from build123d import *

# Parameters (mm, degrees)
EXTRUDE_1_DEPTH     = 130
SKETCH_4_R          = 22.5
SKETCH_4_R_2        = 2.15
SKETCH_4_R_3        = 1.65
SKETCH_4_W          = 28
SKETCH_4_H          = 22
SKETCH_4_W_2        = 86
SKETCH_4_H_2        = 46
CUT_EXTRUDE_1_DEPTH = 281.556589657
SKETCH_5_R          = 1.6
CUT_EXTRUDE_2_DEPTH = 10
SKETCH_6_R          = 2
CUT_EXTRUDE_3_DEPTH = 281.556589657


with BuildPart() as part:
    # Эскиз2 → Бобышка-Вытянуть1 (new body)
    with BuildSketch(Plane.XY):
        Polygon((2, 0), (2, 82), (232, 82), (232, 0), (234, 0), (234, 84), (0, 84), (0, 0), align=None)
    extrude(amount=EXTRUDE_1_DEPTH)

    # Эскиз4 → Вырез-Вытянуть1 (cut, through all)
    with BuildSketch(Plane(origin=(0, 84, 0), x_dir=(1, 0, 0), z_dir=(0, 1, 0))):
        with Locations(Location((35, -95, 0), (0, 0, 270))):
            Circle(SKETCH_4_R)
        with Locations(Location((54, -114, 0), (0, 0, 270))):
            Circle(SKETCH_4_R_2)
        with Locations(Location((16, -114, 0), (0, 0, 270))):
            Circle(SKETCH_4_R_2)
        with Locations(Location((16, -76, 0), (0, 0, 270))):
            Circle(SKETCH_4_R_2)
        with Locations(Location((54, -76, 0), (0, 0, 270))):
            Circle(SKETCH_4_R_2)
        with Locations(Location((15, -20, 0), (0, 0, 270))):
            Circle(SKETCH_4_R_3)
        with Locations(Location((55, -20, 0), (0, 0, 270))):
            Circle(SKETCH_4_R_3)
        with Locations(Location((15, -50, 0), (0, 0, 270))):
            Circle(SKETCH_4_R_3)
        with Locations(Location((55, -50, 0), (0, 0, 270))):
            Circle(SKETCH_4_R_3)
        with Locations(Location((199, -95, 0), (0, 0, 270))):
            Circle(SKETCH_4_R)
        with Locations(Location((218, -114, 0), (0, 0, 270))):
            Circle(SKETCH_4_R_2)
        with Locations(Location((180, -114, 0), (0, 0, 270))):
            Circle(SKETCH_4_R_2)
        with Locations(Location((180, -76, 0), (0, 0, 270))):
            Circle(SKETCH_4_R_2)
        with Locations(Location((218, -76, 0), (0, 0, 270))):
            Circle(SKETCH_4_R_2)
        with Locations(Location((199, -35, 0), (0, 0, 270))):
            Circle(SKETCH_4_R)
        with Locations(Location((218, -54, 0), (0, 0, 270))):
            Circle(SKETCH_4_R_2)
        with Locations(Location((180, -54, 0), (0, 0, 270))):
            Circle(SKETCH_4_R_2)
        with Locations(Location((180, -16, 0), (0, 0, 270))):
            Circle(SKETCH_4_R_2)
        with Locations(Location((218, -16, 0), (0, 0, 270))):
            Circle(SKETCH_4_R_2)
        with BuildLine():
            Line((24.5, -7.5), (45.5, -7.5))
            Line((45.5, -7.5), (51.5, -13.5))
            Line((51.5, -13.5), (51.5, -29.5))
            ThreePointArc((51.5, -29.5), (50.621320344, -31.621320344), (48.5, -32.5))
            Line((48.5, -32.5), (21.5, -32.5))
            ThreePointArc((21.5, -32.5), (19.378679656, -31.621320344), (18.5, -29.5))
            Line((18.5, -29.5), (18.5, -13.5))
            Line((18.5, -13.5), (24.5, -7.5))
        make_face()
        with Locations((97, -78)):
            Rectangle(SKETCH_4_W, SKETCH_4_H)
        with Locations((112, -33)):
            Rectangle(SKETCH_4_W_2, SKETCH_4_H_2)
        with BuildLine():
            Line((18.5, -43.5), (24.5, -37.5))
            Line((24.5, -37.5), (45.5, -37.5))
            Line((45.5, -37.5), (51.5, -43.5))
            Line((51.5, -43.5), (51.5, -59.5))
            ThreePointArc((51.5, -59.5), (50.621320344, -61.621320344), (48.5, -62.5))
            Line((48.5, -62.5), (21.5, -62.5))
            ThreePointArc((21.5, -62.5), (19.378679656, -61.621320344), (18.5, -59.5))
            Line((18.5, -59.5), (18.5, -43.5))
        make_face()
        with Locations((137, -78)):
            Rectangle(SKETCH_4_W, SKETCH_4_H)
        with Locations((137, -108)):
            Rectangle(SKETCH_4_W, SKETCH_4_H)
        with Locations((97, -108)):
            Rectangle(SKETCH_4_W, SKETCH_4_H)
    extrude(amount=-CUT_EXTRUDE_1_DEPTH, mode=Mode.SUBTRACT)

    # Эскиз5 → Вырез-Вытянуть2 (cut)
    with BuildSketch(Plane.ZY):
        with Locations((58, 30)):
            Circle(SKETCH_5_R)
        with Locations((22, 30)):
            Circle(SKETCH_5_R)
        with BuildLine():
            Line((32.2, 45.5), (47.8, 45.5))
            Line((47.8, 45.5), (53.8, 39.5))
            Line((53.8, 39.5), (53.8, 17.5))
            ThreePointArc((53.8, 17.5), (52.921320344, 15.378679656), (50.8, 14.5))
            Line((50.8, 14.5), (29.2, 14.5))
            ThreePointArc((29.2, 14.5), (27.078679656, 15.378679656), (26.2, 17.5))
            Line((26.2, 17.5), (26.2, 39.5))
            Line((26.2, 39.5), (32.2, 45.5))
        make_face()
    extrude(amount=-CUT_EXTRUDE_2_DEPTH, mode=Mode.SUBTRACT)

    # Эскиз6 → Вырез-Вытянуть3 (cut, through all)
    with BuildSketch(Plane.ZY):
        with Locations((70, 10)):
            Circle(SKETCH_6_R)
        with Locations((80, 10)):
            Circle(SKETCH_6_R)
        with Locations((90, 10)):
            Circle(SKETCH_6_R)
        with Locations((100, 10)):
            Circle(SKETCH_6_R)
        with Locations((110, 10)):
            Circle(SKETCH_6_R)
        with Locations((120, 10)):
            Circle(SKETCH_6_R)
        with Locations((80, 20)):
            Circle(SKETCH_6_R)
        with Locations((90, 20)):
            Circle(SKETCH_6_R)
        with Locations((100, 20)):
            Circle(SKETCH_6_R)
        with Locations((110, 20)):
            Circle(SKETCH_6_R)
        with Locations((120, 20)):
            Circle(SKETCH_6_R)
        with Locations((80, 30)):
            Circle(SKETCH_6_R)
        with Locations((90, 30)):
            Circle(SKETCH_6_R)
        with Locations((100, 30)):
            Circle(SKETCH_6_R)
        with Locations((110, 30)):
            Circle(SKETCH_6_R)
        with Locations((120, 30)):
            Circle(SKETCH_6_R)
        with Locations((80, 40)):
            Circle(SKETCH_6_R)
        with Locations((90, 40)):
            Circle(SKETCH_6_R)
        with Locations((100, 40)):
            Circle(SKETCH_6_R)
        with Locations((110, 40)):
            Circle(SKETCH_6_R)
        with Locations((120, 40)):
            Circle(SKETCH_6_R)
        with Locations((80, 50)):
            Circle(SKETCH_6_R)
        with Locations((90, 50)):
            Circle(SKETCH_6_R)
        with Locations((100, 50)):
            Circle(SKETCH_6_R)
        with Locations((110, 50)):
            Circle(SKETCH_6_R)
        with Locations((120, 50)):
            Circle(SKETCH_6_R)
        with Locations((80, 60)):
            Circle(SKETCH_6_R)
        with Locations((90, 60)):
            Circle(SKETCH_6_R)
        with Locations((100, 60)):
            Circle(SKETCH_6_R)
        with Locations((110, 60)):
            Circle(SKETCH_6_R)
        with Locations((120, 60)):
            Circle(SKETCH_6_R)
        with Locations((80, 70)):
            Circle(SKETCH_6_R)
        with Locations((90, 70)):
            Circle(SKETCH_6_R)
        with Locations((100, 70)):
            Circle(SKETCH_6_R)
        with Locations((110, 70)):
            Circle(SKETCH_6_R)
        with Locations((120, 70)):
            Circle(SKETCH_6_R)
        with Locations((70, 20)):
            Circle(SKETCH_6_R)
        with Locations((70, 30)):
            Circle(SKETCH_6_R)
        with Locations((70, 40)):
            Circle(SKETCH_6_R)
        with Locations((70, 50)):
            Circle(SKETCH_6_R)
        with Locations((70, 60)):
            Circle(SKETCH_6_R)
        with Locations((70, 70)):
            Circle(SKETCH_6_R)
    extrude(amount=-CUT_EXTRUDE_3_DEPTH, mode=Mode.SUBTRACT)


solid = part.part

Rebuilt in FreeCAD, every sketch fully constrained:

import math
import FreeCAD as App
import Part
import Sketcher
from FreeCAD import Vector

doc = App.newDocument("Part")
params = doc.addObject("Spreadsheet::Sheet", "Params")
for row, (alias, value) in enumerate([
    ("sketch1_width", "230 mm"),
    ("sketch1_width2", "2 mm"),
    ("sketch1_height", "82 mm"),
    ("sketch1_height2", "84 mm"),
    ("pad1_length", "130 mm"),
    ("sketch2_diameter", "45 mm"),
    ("sketch2_radius", "3 mm"),
    ("sketch2_diameter2", "4.3 mm"),
    ("sketch2_diameter3", "3.3 mm"),
    ("sketch2_width", "21 mm"),
    ("sketch3_radius", "3 mm"),
    ("sketch3_diameter", "3.2 mm"),
    ("sketch3_width", "22 mm"),
    ("sketch3_height", "15.6 mm"),
    ("sketch3_height2", "21.6 mm"),
    ("pocket2_length", "10 mm"),
    ("sketch4_diameter", "4 mm"),
], start=1):
    params.set(f"A{row}", alias)
    params.set(f"B{row}", "=" + value)
    params.setAlias(f"B{row}", alias)

body = doc.addObject("PartDesign::Body", "Body")

# Sketch on XY plane
sketch1 = body.newObject("Sketcher::SketchObject", "Sketch")
sketch1.AttachmentSupport = (doc.getObject("XY_Plane"), [""])
sketch1.MapMode = "FlatFace"
sketch1.addGeometry([
    Part.LineSegment(Vector(2, 0, 0), Vector(2, 82, 0)),  # 0
    Part.LineSegment(Vector(2, 82, 0), Vector(232, 82, 0)),  # 1
    Part.LineSegment(Vector(232, 82, 0), Vector(232, 0, 0)),  # 2
    Part.LineSegment(Vector(232, 0, 0), Vector(234, 0, 0)),  # 3
    Part.LineSegment(Vector(234, 0, 0), Vector(234, 84, 0)),  # 4
    Part.LineSegment(Vector(234, 84, 0), Vector(0, 84, 0)),  # 5
    Part.LineSegment(Vector(0, 84, 0), Vector(0, 0, 0)),  # 6
    Part.LineSegment(Vector(0, 0, 0), Vector(2, 0, 0)),  # 7
], False)
sketch1.addConstraint([
    Sketcher.Constraint("Coincident", 0, 2, 1, 1),
    Sketcher.Constraint("Coincident", 1, 2, 2, 1),
    Sketcher.Constraint("Coincident", 2, 2, 3, 1),
    Sketcher.Constraint("Coincident", 3, 2, 4, 1),
    Sketcher.Constraint("Coincident", 4, 2, 5, 1),
    Sketcher.Constraint("Coincident", 5, 2, 6, 1),
    Sketcher.Constraint("Coincident", 6, 2, 7, 1),
    Sketcher.Constraint("Coincident", 7, 2, 0, 1),
    Sketcher.Constraint("Vertical", 0),
    Sketcher.Constraint("Horizontal", 1),
    Sketcher.Constraint("Vertical", 2),
    Sketcher.Constraint("Horizontal", 3),
    Sketcher.Constraint("Vertical", 4),
    Sketcher.Constraint("Horizontal", 5),
    Sketcher.Constraint("Vertical", 6),
    Sketcher.Constraint("Horizontal", 7),
    Sketcher.Constraint("Coincident", 6, 2, -1, 1),
    Sketcher.Constraint("PointOnObject", 2, 2, -1),
    Sketcher.Constraint("Equal", 3, 7),
    Sketcher.Constraint("DistanceX", 1, 1, 1, 2, 230.0),
    Sketcher.Constraint("DistanceX", 3, 1, 3, 2, 2.0),
    Sketcher.Constraint("DistanceY", 0, 1, 0, 2, 82.0),
    Sketcher.Constraint("DistanceY", 4, 1, 4, 2, 84.0),
])
sketch1.setExpression("Constraints[19]", "Params.sketch1_width")
sketch1.setExpression("Constraints[20]", "Params.sketch1_width2")
sketch1.setExpression("Constraints[21]", "Params.sketch1_height")
sketch1.setExpression("Constraints[22]", "Params.sketch1_height2")
pad1 = body.newObject("PartDesign::Pad", "Pad")
pad1.Profile = sketch1
pad1.setExpression("Length", "Params.pad1_length")

# Sketch on XZ plane
sketch2 = body.newObject("Sketcher::SketchObject", "Sketch001")
sketch2.AttachmentSupport = (doc.getObject("XZ_Plane"), [""])
sketch2.MapMode = "FlatFace"
sketch2.AttachmentOffset = App.Placement(Vector(0, 0, -84), App.Rotation())
sketch2.addGeometry([
    Part.Circle(Vector(35, 95, 0), Vector(0, 0, 1), 22.5),  # 0
    Part.Circle(Vector(54, 114, 0), Vector(0, 0, 1), 2.15),  # 1
    Part.Circle(Vector(16, 114, 0), Vector(0, 0, 1), 2.15),  # 2
    Part.Circle(Vector(16, 76, 0), Vector(0, 0, 1), 2.15),  # 3
    Part.Circle(Vector(54, 76, 0), Vector(0, 0, 1), 2.15),  # 4
    Part.Circle(Vector(15, 20, 0), Vector(0, 0, 1), 1.65),  # 5
    Part.Circle(Vector(55, 20, 0), Vector(0, 0, 1), 1.65),  # 6
    Part.Circle(Vector(15, 50, 0), Vector(0, 0, 1), 1.65),  # 7
    Part.Circle(Vector(55, 50, 0), Vector(0, 0, 1), 1.65),  # 8
    Part.Circle(Vector(199, 95, 0), Vector(0, 0, 1), 22.5),  # 9
    Part.Circle(Vector(218, 114, 0), Vector(0, 0, 1), 2.15),  # 10
    Part.Circle(Vector(180, 114, 0), Vector(0, 0, 1), 2.15),  # 11
    Part.Circle(Vector(180, 76, 0), Vector(0, 0, 1), 2.15),  # 12
    Part.Circle(Vector(218, 76, 0), Vector(0, 0, 1), 2.15),  # 13
    Part.Circle(Vector(199, 35, 0), Vector(0, 0, 1), 22.5),  # 14
    Part.Circle(Vector(218, 54, 0), Vector(0, 0, 1), 2.15),  # 15
    Part.Circle(Vector(180, 54, 0), Vector(0, 0, 1), 2.15),  # 16
    Part.Circle(Vector(180, 16, 0), Vector(0, 0, 1), 2.15),  # 17
    Part.Circle(Vector(218, 16, 0), Vector(0, 0, 1), 2.15),  # 18
    Part.LineSegment(Vector(45.5, 7.5, 0), Vector(24.5, 7.5, 0)),  # 19
    Part.LineSegment(Vector(24.5, 7.5, 0), Vector(18.5, 13.5, 0)),  # 20
    Part.LineSegment(Vector(18.5, 13.5, 0), Vector(18.5, 29.5, 0)),  # 21
    Part.ArcOfCircle(Part.Circle(Vector(21.5, 29.5, 0), Vector(0, 0, 1), 3), math.radians(90), math.radians(180)),  # 22
    Part.LineSegment(Vector(21.5, 32.5, 0), Vector(48.5, 32.5, 0)),  # 23
    Part.ArcOfCircle(Part.Circle(Vector(48.5, 29.5, 0), Vector(0, 0, 1), 3), math.radians(0), math.radians(90)),  # 24
    Part.LineSegment(Vector(51.5, 29.5, 0), Vector(51.5, 13.5, 0)),  # 25
    Part.LineSegment(Vector(51.5, 13.5, 0), Vector(45.5, 7.5, 0)),  # 26
    Part.LineSegment(Vector(83, 67, 0), Vector(83, 89, 0)),  # 27
    Part.LineSegment(Vector(83, 89, 0), Vector(111, 89, 0)),  # 28
    Part.LineSegment(Vector(111, 89, 0), Vector(111, 67, 0)),  # 29
    Part.LineSegment(Vector(111, 67, 0), Vector(83, 67, 0)),  # 30
    Part.LineSegment(Vector(69, 10, 0), Vector(69, 56, 0)),  # 31
    Part.LineSegment(Vector(69, 56, 0), Vector(155, 56, 0)),  # 32
    Part.LineSegment(Vector(155, 56, 0), Vector(155, 10, 0)),  # 33
    Part.LineSegment(Vector(155, 10, 0), Vector(69, 10, 0)),  # 34
    Part.LineSegment(Vector(24.5, 37.5, 0), Vector(18.5, 43.5, 0)),  # 35
    Part.LineSegment(Vector(18.5, 43.5, 0), Vector(18.5, 59.5, 0)),  # 36
    Part.ArcOfCircle(Part.Circle(Vector(21.5, 59.5, 0), Vector(0, 0, 1), 3), math.radians(90), math.radians(180)),  # 37
    Part.LineSegment(Vector(21.5, 62.5, 0), Vector(48.5, 62.5, 0)),  # 38
    Part.ArcOfCircle(Part.Circle(Vector(48.5, 59.5, 0), Vector(0, 0, 1), 3), math.radians(0), math.radians(90)),  # 39
    Part.LineSegment(Vector(51.5, 59.5, 0), Vector(51.5, 43.5, 0)),  # 40
    Part.LineSegment(Vector(51.5, 43.5, 0), Vector(45.5, 37.5, 0)),  # 41
    Part.LineSegment(Vector(45.5, 37.5, 0), Vector(24.5, 37.5, 0)),  # 42
    Part.LineSegment(Vector(123, 67, 0), Vector(123, 89, 0)),  # 43
    Part.LineSegment(Vector(123, 89, 0), Vector(151, 89, 0)),  # 44
    Part.LineSegment(Vector(151, 89, 0), Vector(151, 67, 0)),  # 45
    Part.LineSegment(Vector(151, 67, 0), Vector(123, 67, 0)),  # 46
    Part.LineSegment(Vector(123, 97, 0), Vector(123, 119, 0)),  # 47
    Part.LineSegment(Vector(123, 119, 0), Vector(151, 119, 0)),  # 48
    Part.LineSegment(Vector(151, 119, 0), Vector(151, 97, 0)),  # 49
    Part.LineSegment(Vector(151, 97, 0), Vector(123, 97, 0)),  # 50
    Part.LineSegment(Vector(83, 97, 0), Vector(83, 119, 0)),  # 51
    Part.LineSegment(Vector(83, 119, 0), Vector(111, 119, 0)),  # 52
    Part.LineSegment(Vector(111, 119, 0), Vector(111, 97, 0)),  # 53
    Part.LineSegment(Vector(111, 97, 0), Vector(83, 97, 0)),  # 54
], False)
sketch2.addConstraint([
    Sketcher.Constraint("Coincident", 19, 2, 20, 1),
    Sketcher.Constraint("Coincident", 20, 2, 21, 1),
    Sketcher.Constraint("Tangent", 21, 2, 22, 2),
    Sketcher.Constraint("Tangent", 22, 1, 23, 1),
    Sketcher.Constraint("Tangent", 23, 2, 24, 2),
    Sketcher.Constraint("Tangent", 24, 1, 25, 1),
    Sketcher.Constraint("Coincident", 25, 2, 26, 1),
    Sketcher.Constraint("Coincident", 26, 2, 19, 1),
    Sketcher.Constraint("Coincident", 27, 2, 28, 1),
    Sketcher.Constraint("Coincident", 28, 2, 29, 1),
    Sketcher.Constraint("Coincident", 29, 2, 30, 1),
    Sketcher.Constraint("Coincident", 30, 2, 27, 1),
    Sketcher.Constraint("Coincident", 31, 2, 32, 1),
    Sketcher.Constraint("Coincident", 32, 2, 33, 1),
    Sketcher.Constraint("Coincident", 33, 2, 34, 1),
    Sketcher.Constraint("Coincident", 34, 2, 31, 1),
    Sketcher.Constraint("Coincident", 35, 2, 36, 1),
    Sketcher.Constraint("Tangent", 36, 2, 37, 2),
    Sketcher.Constraint("Tangent", 37, 1, 38, 1),
    Sketcher.Constraint("Tangent", 38, 2, 39, 2),
    Sketcher.Constraint("Tangent", 39, 1, 40, 1),
    Sketcher.Constraint("Coincident", 40, 2, 41, 1),
    Sketcher.Constraint("Coincident", 41, 2, 42, 1),
    Sketcher.Constraint("Coincident", 42, 2, 35, 1),
    Sketcher.Constraint("Coincident", 43, 2, 44, 1),
    Sketcher.Constraint("Coincident", 44, 2, 45, 1),
    Sketcher.Constraint("Coincident", 45, 2, 46, 1),
    Sketcher.Constraint("Coincident", 46, 2, 43, 1),
    Sketcher.Constraint("Coincident", 47, 2, 48, 1),
    Sketcher.Constraint("Coincident", 48, 2, 49, 1),
    Sketcher.Constraint("Coincident", 49, 2, 50, 1),
    Sketcher.Constraint("Coincident", 50, 2, 47, 1),
    Sketcher.Constraint("Coincident", 51, 2, 52, 1),
    Sketcher.Constraint("Coincident", 52, 2, 53, 1),
    Sketcher.Constraint("Coincident", 53, 2, 54, 1),
    Sketcher.Constraint("Coincident", 54, 2, 51, 1),
    Sketcher.Constraint("Horizontal", 19),
    Sketcher.Constraint("Vertical", 21),
    Sketcher.Constraint("Horizontal", 23),
    Sketcher.Constraint("Vertical", 25),
    Sketcher.Constraint("Vertical", 27),
    Sketcher.Constraint("Horizontal", 28),
    Sketcher.Constraint("Vertical", 29),
    Sketcher.Constraint("Horizontal", 30),
    Sketcher.Constraint("Vertical", 31),
    Sketcher.Constraint("Horizontal", 32),
    Sketcher.Constraint("Vertical", 33),
    Sketcher.Constraint("Horizontal", 34),
    Sketcher.Constraint("Vertical", 36),
    Sketcher.Constraint("Horizontal", 38),
    Sketcher.Constraint("Vertical", 40),
    Sketcher.Constraint("Horizontal", 42),
    Sketcher.Constraint("Vertical", 43),
    Sketcher.Constraint("Horizontal", 44),
    Sketcher.Constraint("Vertical", 45),
    Sketcher.Constraint("Horizontal", 46),
    Sketcher.Constraint("Vertical", 47),
    Sketcher.Constraint("Horizontal", 48),
    Sketcher.Constraint("Vertical", 49),
    Sketcher.Constraint("Horizontal", 50),
    Sketcher.Constraint("Vertical", 51),
    Sketcher.Constraint("Horizontal", 52),
    Sketcher.Constraint("Vertical", 53),
    Sketcher.Constraint("Horizontal", 54),
    Sketcher.Constraint("Equal", 1, 2),
    Sketcher.Constraint("Equal", 2, 3),
    Sketcher.Constraint("Equal", 3, 4),
    Sketcher.Constraint("Equal", 5, 6),
    Sketcher.Constraint("Equal", 6, 7),
    Sketcher.Constraint("Equal", 7, 8),
    Sketcher.Constraint("Equal", 0, 9),
    Sketcher.Constraint("Equal", 4, 10),
    Sketcher.Constraint("Equal", 10, 11),
    Sketcher.Constraint("Equal", 11, 12),
    Sketcher.Constraint("Equal", 12, 13),
    Sketcher.Constraint("Equal", 9, 14),
    Sketcher.Constraint("Equal", 13, 15),
    Sketcher.Constraint("Equal", 15, 16),
    Sketcher.Constraint("Equal", 16, 17),
    Sketcher.Constraint("Equal", 17, 18),
    Sketcher.Constraint("Equal", 22, 24),
    Sketcher.Constraint("Equal", 24, 37),
    Sketcher.Constraint("Equal", 37, 39),
    Sketcher.Constraint("Perpendicular", 20, 26),
    Sketcher.Constraint("Perpendicular", 26, 35),
    Sketcher.Constraint("Perpendicular", 35, 41),
    Sketcher.Constraint("Horizontal", 1, 3, 2, 3),
    Sketcher.Constraint("Horizontal", 3, 3, 4, 3),
    Sketcher.Constraint("Horizontal", 5, 3, 6, 3),
    Sketcher.Constraint("Horizontal", 7, 3, 8, 3),
    Sketcher.Constraint("Horizontal", 0, 3, 9, 3),
    Sketcher.Constraint("Horizontal", 2, 3, 10, 3),
    Sketcher.Constraint("Horizontal", 10, 3, 11, 3),
    Sketcher.Constraint("Horizontal", 4, 3, 12, 3),
    Sketcher.Constraint("Horizontal", 12, 3, 13, 3),
    Sketcher.Constraint("Horizontal", 15, 3, 16, 3),
    Sketcher.Constraint("Horizontal", 17, 3, 18, 3),
    Sketcher.Constraint("Horizontal", 20, 2, 25, 2),
    Sketcher.Constraint("Horizontal", 35, 2, 40, 2),
    Sketcher.Constraint("Horizontal", 28, 2, 43, 2),
    Sketcher.Constraint("Horizontal", 30, 2, 45, 2),
    Sketcher.Constraint("Horizontal", 48, 2, 51, 2),
    Sketcher.Constraint("Horizontal", 50, 2, 53, 2),
    Sketcher.Constraint("Vertical", 2, 3, 3, 3),
    Sketcher.Constraint("Vertical", 1, 3, 4, 3),
    Sketcher.Constraint("Vertical", 5, 3, 7, 3),
    Sketcher.Constraint("Vertical", 6, 3, 8, 3),
    Sketcher.Constraint("Vertical", 11, 3, 12, 3),
    Sketcher.Constraint("Vertical", 10, 3, 13, 3),
    Sketcher.Constraint("Vertical", 9, 3, 14, 3),
    Sketcher.Constraint("Vertical", 13, 3, 15, 3),
    Sketcher.Constraint("Vertical", 12, 3, 16, 3),
    Sketcher.Constraint("Vertical", 16, 3, 17, 3),
    Sketcher.Constraint("Vertical", 15, 3, 18, 3),
    Sketcher.Constraint("Vertical", 22, 3, 37, 3),
    Sketcher.Constraint("Vertical", 24, 3, 39, 3),
    Sketcher.Constraint("Vertical", 26, 2, 41, 2),
    Sketcher.Constraint("Vertical", 46, 2, 47, 2),
    Sketcher.Constraint("Vertical", 45, 2, 48, 2),
    Sketcher.Constraint("Vertical", 30, 2, 51, 2),
    Sketcher.Constraint("Vertical", 29, 2, 52, 2),
    Sketcher.Constraint("Equal", 30, 44),
    Sketcher.Constraint("Equal", 25, 36),
    Sketcher.Constraint("Equal", 45, 47),
    Sketcher.Constraint("Equal", 20, 26),
    Sketcher.Constraint("Diameter", 0, 45.0),
    Sketcher.Constraint("Radius", 22, 3.0),
    Sketcher.Constraint("Diameter", 1, 4.3),
    Sketcher.Constraint("Diameter", 5, 3.3),
    Sketcher.Constraint("DistanceX", 19, 2, 19, 1, 21.0),
    Sketcher.Constraint("DistanceX", 23, 1, 23, 2, 27.0),
    Sketcher.Constraint("DistanceX", 28, 1, 28, 2, 28.0),
    Sketcher.Constraint("DistanceX", 32, 1, 32, 2, 86.0),
    Sketcher.Constraint("DistanceY", 21, 1, 21, 2, 16.0),
    Sketcher.Constraint("DistanceY", 27, 1, 27, 2, 22.0),
    Sketcher.Constraint("DistanceY", 31, 1, 31, 2, 46.0),
    Sketcher.Constraint("DistanceX", -1, 1, 0, 3, 35.0),
    Sketcher.Constraint("DistanceY", -1, 1, 0, 3, 95.0),
    Sketcher.Constraint("DistanceX", -1, 1, 1, 3, 54.0),
    Sketcher.Constraint("DistanceY", -1, 1, 1, 3, 114.0),
    Sketcher.Constraint("DistanceX", -1, 1, 2, 3, 16.0),
    Sketcher.Constraint("DistanceY", -1, 1, 3, 3, 76.0),
    Sketcher.Constraint("DistanceX", -1, 1, 5, 3, 15.0),
    Sketcher.Constraint("DistanceY", -1, 1, 5, 3, 20.0),
    Sketcher.Constraint("DistanceX", -1, 1, 6, 3, 55.0),
    Sketcher.Constraint("DistanceY", -1, 1, 7, 3, 50.0),
    Sketcher.Constraint("DistanceX", -1, 1, 9, 3, 199.0),
    Sketcher.Constraint("DistanceX", -1, 1, 10, 3, 218.0),
    Sketcher.Constraint("DistanceX", -1, 1, 11, 3, 180.0),
    Sketcher.Constraint("DistanceY", -1, 1, 14, 3, 35.0),
    Sketcher.Constraint("DistanceY", -1, 1, 15, 3, 54.0),
    Sketcher.Constraint("DistanceY", -1, 1, 17, 3, 16.0),
    Sketcher.Constraint("DistanceX", -1, 1, 27, 2, 83.0),
    Sketcher.Constraint("DistanceY", -1, 1, 27, 2, 89.0),
    Sketcher.Constraint("DistanceX", -1, 1, 31, 2, 69.0),
    Sketcher.Constraint("DistanceY", -1, 1, 31, 2, 56.0),
    Sketcher.Constraint("DistanceX", -1, 1, 43, 2, 123.0),
    Sketcher.Constraint("DistanceY", -1, 1, 47, 2, 119.0),
    Sketcher.Constraint("DistanceY", 22, 3, 37, 3, 30.0),
    Sketcher.Constraint("DistanceX", -1, 1, 22, 3, 21.5),
    Sketcher.Constraint("DistanceY", -1, 1, 22, 3, 29.5),
])
sketch2.setExpression("Constraints[125]", "Params.sketch2_diameter")
sketch2.setExpression("Constraints[126]", "Params.sketch2_radius")
sketch2.setExpression("Constraints[127]", "Params.sketch2_diameter2")
sketch2.setExpression("Constraints[128]", "Params.sketch2_diameter3")
sketch2.setExpression("Constraints[129]", "Params.sketch2_width")
pocket1 = body.newObject("PartDesign::Pocket", "Pocket")
pocket1.Profile = sketch2
pocket1.Type = "ThroughAll"
pocket1.Reversed = True

# Sketch on YZ plane
sketch3 = body.newObject("Sketcher::SketchObject", "Sketch002")
sketch3.AttachmentSupport = (doc.getObject("YZ_Plane"), [""])
sketch3.MapMode = "FlatFace"
sketch3.addGeometry([
    Part.Circle(Vector(30, 58, 0), Vector(0, 0, 1), 1.6),  # 0
    Part.Circle(Vector(30, 22, 0), Vector(0, 0, 1), 1.6),  # 1
    Part.LineSegment(Vector(45.5, 47.8, 0), Vector(45.5, 32.2, 0)),  # 2
    Part.LineSegment(Vector(45.5, 32.2, 0), Vector(39.5, 26.2, 0)),  # 3
    Part.LineSegment(Vector(39.5, 26.2, 0), Vector(17.5, 26.2, 0)),  # 4
    Part.ArcOfCircle(Part.Circle(Vector(17.5, 29.2, 0), Vector(0, 0, 1), 3), math.radians(180), math.radians(270)),  # 5
    Part.LineSegment(Vector(14.5, 29.2, 0), Vector(14.5, 50.8, 0)),  # 6
    Part.ArcOfCircle(Part.Circle(Vector(17.5, 50.8, 0), Vector(0, 0, 1), 3), math.radians(90), math.radians(180)),  # 7
    Part.LineSegment(Vector(17.5, 53.8, 0), Vector(39.5, 53.8, 0)),  # 8
    Part.LineSegment(Vector(39.5, 53.8, 0), Vector(45.5, 47.8, 0)),  # 9
], False)
sketch3.addConstraint([
    Sketcher.Constraint("Coincident", 2, 2, 3, 1),
    Sketcher.Constraint("Coincident", 3, 2, 4, 1),
    Sketcher.Constraint("Tangent", 4, 2, 5, 2),
    Sketcher.Constraint("Tangent", 5, 1, 6, 1),
    Sketcher.Constraint("Tangent", 6, 2, 7, 2),
    Sketcher.Constraint("Tangent", 7, 1, 8, 1),
    Sketcher.Constraint("Coincident", 8, 2, 9, 1),
    Sketcher.Constraint("Coincident", 9, 2, 2, 1),
    Sketcher.Constraint("Vertical", 2),
    Sketcher.Constraint("Horizontal", 4),
    Sketcher.Constraint("Vertical", 6),
    Sketcher.Constraint("Horizontal", 8),
    Sketcher.Constraint("Equal", 0, 1),
    Sketcher.Constraint("Equal", 5, 7),
    Sketcher.Constraint("Perpendicular", 3, 9),
    Sketcher.Constraint("Vertical", 0, 3, 1, 3),
    Sketcher.Constraint("Vertical", 3, 2, 8, 2),
    Sketcher.Constraint("Equal", 3, 9),
    Sketcher.Constraint("Radius", 5, 3.0),
    Sketcher.Constraint("Diameter", 0, 3.2),
    Sketcher.Constraint("DistanceX", 4, 2, 4, 1, 22.0),
    Sketcher.Constraint("DistanceY", 2, 2, 2, 1, 15.6),
    Sketcher.Constraint("DistanceY", 6, 1, 6, 2, 21.6),
    Sketcher.Constraint("DistanceX", -1, 1, 0, 3, 30.0),
    Sketcher.Constraint("DistanceY", -1, 1, 0, 3, 58.0),
    Sketcher.Constraint("DistanceY", -1, 1, 1, 3, 22.0),
    Sketcher.Constraint("DistanceX", -1, 1, 5, 3, 17.5),
    Sketcher.Constraint("DistanceY", -1, 1, 5, 3, 29.2),
])
sketch3.setExpression("Constraints[18]", "Params.sketch3_radius")
sketch3.setExpression("Constraints[19]", "Params.sketch3_diameter")
sketch3.setExpression("Constraints[20]", "Params.sketch3_width")
sketch3.setExpression("Constraints[21]", "Params.sketch3_height")
sketch3.setExpression("Constraints[22]", "Params.sketch3_height2")
pocket2 = body.newObject("PartDesign::Pocket", "Pocket001")
pocket2.Profile = sketch3
pocket2.setExpression("Length", "Params.pocket2_length")
pocket2.Reversed = True

# Sketch on YZ plane
sketch4 = body.newObject("Sketcher::SketchObject", "Sketch003")
sketch4.AttachmentSupport = (doc.getObject("YZ_Plane"), [""])
sketch4.MapMode = "FlatFace"
sketch4.addGeometry([
    Part.Circle(Vector(10, 70, 0), Vector(0, 0, 1), 2),  # 0
    Part.Circle(Vector(10, 80, 0), Vector(0, 0, 1), 2),  # 1
    Part.Circle(Vector(10, 90, 0), Vector(0, 0, 1), 2),  # 2
    Part.Circle(Vector(10, 100, 0), Vector(0, 0, 1), 2),  # 3
    Part.Circle(Vector(10, 110, 0), Vector(0, 0, 1), 2),  # 4
    Part.Circle(Vector(10, 120, 0), Vector(0, 0, 1), 2),  # 5
    Part.Circle(Vector(20, 80, 0), Vector(0, 0, 1), 2),  # 6
    Part.Circle(Vector(20, 90, 0), Vector(0, 0, 1), 2),  # 7
    Part.Circle(Vector(20, 100, 0), Vector(0, 0, 1), 2),  # 8
    Part.Circle(Vector(20, 110, 0), Vector(0, 0, 1), 2),  # 9
    Part.Circle(Vector(20, 120, 0), Vector(0, 0, 1), 2),  # 10
    Part.Circle(Vector(30, 80, 0), Vector(0, 0, 1), 2),  # 11
    Part.Circle(Vector(30, 90, 0), Vector(0, 0, 1), 2),  # 12
    Part.Circle(Vector(30, 100, 0), Vector(0, 0, 1), 2),  # 13
    Part.Circle(Vector(30, 110, 0), Vector(0, 0, 1), 2),  # 14
    Part.Circle(Vector(30, 120, 0), Vector(0, 0, 1), 2),  # 15
    Part.Circle(Vector(40, 80, 0), Vector(0, 0, 1), 2),  # 16
    Part.Circle(Vector(40, 90, 0), Vector(0, 0, 1), 2),  # 17
    Part.Circle(Vector(40, 100, 0), Vector(0, 0, 1), 2),  # 18
    Part.Circle(Vector(40, 110, 0), Vector(0, 0, 1), 2),  # 19
    Part.Circle(Vector(40, 120, 0), Vector(0, 0, 1), 2),  # 20
    Part.Circle(Vector(50, 80, 0), Vector(0, 0, 1), 2),  # 21
    Part.Circle(Vector(50, 90, 0), Vector(0, 0, 1), 2),  # 22
    Part.Circle(Vector(50, 100, 0), Vector(0, 0, 1), 2),  # 23
    Part.Circle(Vector(50, 110, 0), Vector(0, 0, 1), 2),  # 24
    Part.Circle(Vector(50, 120, 0), Vector(0, 0, 1), 2),  # 25
    Part.Circle(Vector(60, 80, 0), Vector(0, 0, 1), 2),  # 26
    Part.Circle(Vector(60, 90, 0), Vector(0, 0, 1), 2),  # 27
    Part.Circle(Vector(60, 100, 0), Vector(0, 0, 1), 2),  # 28
    Part.Circle(Vector(60, 110, 0), Vector(0, 0, 1), 2),  # 29
    Part.Circle(Vector(60, 120, 0), Vector(0, 0, 1), 2),  # 30
    Part.Circle(Vector(70, 80, 0), Vector(0, 0, 1), 2),  # 31
    Part.Circle(Vector(70, 90, 0), Vector(0, 0, 1), 2),  # 32
    Part.Circle(Vector(70, 100, 0), Vector(0, 0, 1), 2),  # 33
    Part.Circle(Vector(70, 110, 0), Vector(0, 0, 1), 2),  # 34
    Part.Circle(Vector(70, 120, 0), Vector(0, 0, 1), 2),  # 35
    Part.Circle(Vector(20, 70, 0), Vector(0, 0, 1), 2),  # 36
    Part.Circle(Vector(30, 70, 0), Vector(0, 0, 1), 2),  # 37
    Part.Circle(Vector(40, 70, 0), Vector(0, 0, 1), 2),  # 38
    Part.Circle(Vector(50, 70, 0), Vector(0, 0, 1), 2),  # 39
    Part.Circle(Vector(60, 70, 0), Vector(0, 0, 1), 2),  # 40
    Part.Circle(Vector(70, 70, 0), Vector(0, 0, 1), 2),  # 41
], False)
sketch4.addConstraint([
    Sketcher.Constraint("Equal", 0, 1),
    Sketcher.Constraint("Equal", 1, 2),
    Sketcher.Constraint("Equal", 2, 3),
    Sketcher.Constraint("Equal", 3, 4),
    Sketcher.Constraint("Equal", 4, 5),
    Sketcher.Constraint("Equal", 5, 6),
    Sketcher.Constraint("Equal", 6, 7),
    Sketcher.Constraint("Equal", 7, 8),
    Sketcher.Constraint("Equal", 8, 9),
    Sketcher.Constraint("Equal", 9, 10),
    Sketcher.Constraint("Equal", 10, 11),
    Sketcher.Constraint("Equal", 11, 12),
    Sketcher.Constraint("Equal", 12, 13),
    Sketcher.Constraint("Equal", 13, 14),
    Sketcher.Constraint("Equal", 14, 15),
    Sketcher.Constraint("Equal", 15, 16),
    Sketcher.Constraint("Equal", 16, 17),
    Sketcher.Constraint("Equal", 17, 18),
    Sketcher.Constraint("Equal", 18, 19),
    Sketcher.Constraint("Equal", 19, 20),
    Sketcher.Constraint("Equal", 20, 21),
    Sketcher.Constraint("Equal", 21, 22),
    Sketcher.Constraint("Equal", 22, 23),
    Sketcher.Constraint("Equal", 23, 24),
    Sketcher.Constraint("Equal", 24, 25),
    Sketcher.Constraint("Equal", 25, 26),
    Sketcher.Constraint("Equal", 26, 27),
    Sketcher.Constraint("Equal", 27, 28),
    Sketcher.Constraint("Equal", 28, 29),
    Sketcher.Constraint("Equal", 29, 30),
    Sketcher.Constraint("Equal", 30, 31),
    Sketcher.Constraint("Equal", 31, 32),
    Sketcher.Constraint("Equal", 32, 33),
    Sketcher.Constraint("Equal", 33, 34),
    Sketcher.Constraint("Equal", 34, 35),
    Sketcher.Constraint("Equal", 35, 36),
    Sketcher.Constraint("Equal", 36, 37),
    Sketcher.Constraint("Equal", 37, 38),
    Sketcher.Constraint("Equal", 38, 39),
    Sketcher.Constraint("Equal", 39, 40),
    Sketcher.Constraint("Equal", 40, 41),
    Sketcher.Constraint("Horizontal", 1, 3, 6, 3),
    Sketcher.Constraint("Horizontal", 2, 3, 7, 3),
    Sketcher.Constraint("Horizontal", 3, 3, 8, 3),
    Sketcher.Constraint("Horizontal", 4, 3, 9, 3),
    Sketcher.Constraint("Horizontal", 5, 3, 10, 3),
    Sketcher.Constraint("Horizontal", 6, 3, 11, 3),
    Sketcher.Constraint("Horizontal", 7, 3, 12, 3),
    Sketcher.Constraint("Horizontal", 8, 3, 13, 3),
    Sketcher.Constraint("Horizontal", 9, 3, 14, 3),
    Sketcher.Constraint("Horizontal", 10, 3, 15, 3),
    Sketcher.Constraint("Horizontal", 11, 3, 16, 3),
    Sketcher.Constraint("Horizontal", 12, 3, 17, 3),
    Sketcher.Constraint("Horizontal", 13, 3, 18, 3),
    Sketcher.Constraint("Horizontal", 14, 3, 19, 3),
    Sketcher.Constraint("Horizontal", 15, 3, 20, 3),
    Sketcher.Constraint("Horizontal", 16, 3, 21, 3),
    Sketcher.Constraint("Horizontal", 17, 3, 22, 3),
    Sketcher.Constraint("Horizontal", 18, 3, 23, 3),
    Sketcher.Constraint("Horizontal", 19, 3, 24, 3),
    Sketcher.Constraint("Horizontal", 20, 3, 25, 3),
    Sketcher.Constraint("Horizontal", 21, 3, 26, 3),
    Sketcher.Constraint("Horizontal", 22, 3, 27, 3),
    Sketcher.Constraint("Horizontal", 23, 3, 28, 3),
    Sketcher.Constraint("Horizontal", 24, 3, 29, 3),
    Sketcher.Constraint("Horizontal", 25, 3, 30, 3),
    Sketcher.Constraint("Horizontal", 26, 3, 31, 3),
    Sketcher.Constraint("Horizontal", 27, 3, 32, 3),
    Sketcher.Constraint("Horizontal", 28, 3, 33, 3),
    Sketcher.Constraint("Horizontal", 29, 3, 34, 3),
    Sketcher.Constraint("Horizontal", 30, 3, 35, 3),
    Sketcher.Constraint("Horizontal", 0, 3, 36, 3),
    Sketcher.Constraint("Horizontal", 36, 3, 37, 3),
    Sketcher.Constraint("Horizontal", 37, 3, 38, 3),
    Sketcher.Constraint("Horizontal", 38, 3, 39, 3),
    Sketcher.Constraint("Horizontal", 39, 3, 40, 3),
    Sketcher.Constraint("Horizontal", 40, 3, 41, 3),
    Sketcher.Constraint("Vertical", 0, 3, 1, 3),
    Sketcher.Constraint("Vertical", 1, 3, 2, 3),
    Sketcher.Constraint("Vertical", 2, 3, 3, 3),
    Sketcher.Constraint("Vertical", 3, 3, 4, 3),
    Sketcher.Constraint("Vertical", 4, 3, 5, 3),
    Sketcher.Constraint("Vertical", 6, 3, 7, 3),
    Sketcher.Constraint("Vertical", 7, 3, 8, 3),
    Sketcher.Constraint("Vertical", 8, 3, 9, 3),
    Sketcher.Constraint("Vertical", 9, 3, 10, 3),
    Sketcher.Constraint("Vertical", 11, 3, 12, 3),
    Sketcher.Constraint("Vertical", 12, 3, 13, 3),
    Sketcher.Constraint("Vertical", 13, 3, 14, 3),
    Sketcher.Constraint("Vertical", 14, 3, 15, 3),
    Sketcher.Constraint("Vertical", 16, 3, 17, 3),
    Sketcher.Constraint("Vertical", 17, 3, 18, 3),
    Sketcher.Constraint("Vertical", 18, 3, 19, 3),
    Sketcher.Constraint("Vertical", 19, 3, 20, 3),
    Sketcher.Constraint("Vertical", 21, 3, 22, 3),
    Sketcher.Constraint("Vertical", 22, 3, 23, 3),
    Sketcher.Constraint("Vertical", 23, 3, 24, 3),
    Sketcher.Constraint("Vertical", 24, 3, 25, 3),
    Sketcher.Constraint("Vertical", 26, 3, 27, 3),
    Sketcher.Constraint("Vertical", 27, 3, 28, 3),
    Sketcher.Constraint("Vertical", 28, 3, 29, 3),
    Sketcher.Constraint("Vertical", 29, 3, 30, 3),
    Sketcher.Constraint("Vertical", 31, 3, 32, 3),
    Sketcher.Constraint("Vertical", 32, 3, 33, 3),
    Sketcher.Constraint("Vertical", 33, 3, 34, 3),
    Sketcher.Constraint("Vertical", 34, 3, 35, 3),
    Sketcher.Constraint("Vertical", 10, 3, 36, 3),
    Sketcher.Constraint("Vertical", 15, 3, 37, 3),
    Sketcher.Constraint("Vertical", 20, 3, 38, 3),
    Sketcher.Constraint("Vertical", 25, 3, 39, 3),
    Sketcher.Constraint("Vertical", 30, 3, 40, 3),
    Sketcher.Constraint("Vertical", 35, 3, 41, 3),
    Sketcher.Constraint("Diameter", 0, 4.0),
    Sketcher.Constraint("DistanceX", -1, 1, 0, 3, 10.0),
    Sketcher.Constraint("DistanceY", -1, 1, 0, 3, 70.0),
    Sketcher.Constraint("DistanceY", -1, 1, 1, 3, 80.0),
    Sketcher.Constraint("DistanceY", -1, 1, 2, 3, 90.0),
    Sketcher.Constraint("DistanceY", -1, 1, 3, 3, 100.0),
    Sketcher.Constraint("DistanceY", -1, 1, 4, 3, 110.0),
    Sketcher.Constraint("DistanceY", -1, 1, 5, 3, 120.0),
    Sketcher.Constraint("DistanceX", -1, 1, 6, 3, 20.0),
    Sketcher.Constraint("DistanceX", -1, 1, 11, 3, 30.0),
    Sketcher.Constraint("DistanceX", -1, 1, 16, 3, 40.0),
    Sketcher.Constraint("DistanceX", -1, 1, 21, 3, 50.0),
    Sketcher.Constraint("DistanceX", -1, 1, 26, 3, 60.0),
    Sketcher.Constraint("DistanceX", -1, 1, 31, 3, 70.0),
])
sketch4.setExpression("Constraints[112]", "Params.sketch4_diameter")
pocket3 = body.newObject("PartDesign::Pocket", "Pocket002")
pocket3.Profile = sketch4
pocket3.Type = "ThroughAll"
pocket3.Reversed = True

doc.recompute()
